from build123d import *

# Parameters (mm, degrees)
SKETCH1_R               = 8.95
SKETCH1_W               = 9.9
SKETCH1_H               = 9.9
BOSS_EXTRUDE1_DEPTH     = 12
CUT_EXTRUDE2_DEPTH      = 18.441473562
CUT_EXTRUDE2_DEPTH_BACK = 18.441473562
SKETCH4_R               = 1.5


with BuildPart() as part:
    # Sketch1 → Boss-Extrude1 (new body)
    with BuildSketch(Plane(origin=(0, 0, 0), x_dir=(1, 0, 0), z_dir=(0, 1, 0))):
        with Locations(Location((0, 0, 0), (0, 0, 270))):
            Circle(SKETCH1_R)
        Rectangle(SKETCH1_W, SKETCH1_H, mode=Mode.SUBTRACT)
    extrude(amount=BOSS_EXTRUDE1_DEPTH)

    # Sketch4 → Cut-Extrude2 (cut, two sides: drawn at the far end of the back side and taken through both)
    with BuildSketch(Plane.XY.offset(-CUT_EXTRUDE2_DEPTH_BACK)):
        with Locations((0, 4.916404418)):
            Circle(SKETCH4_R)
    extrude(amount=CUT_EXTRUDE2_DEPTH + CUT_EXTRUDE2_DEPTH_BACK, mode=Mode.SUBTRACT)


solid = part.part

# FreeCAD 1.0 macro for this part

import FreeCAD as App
import Part
import Sketcher
from FreeCAD import Vector
Q = App.Units.Quantity

doc = App.newDocument("Part")
body = doc.addObject("PartDesign::Body", "Body")

# Sketch on XZ plane
sketch1 = body.newObject("Sketcher::SketchObject", "Sketch")
sketch1.AttachmentSupport = (doc.getObject("XZ_Plane"), [""])
sketch1.MapMode = "FlatFace"
sketch1.addGeometry([
    Part.Circle(Vector(0, 0, 0), Vector(0, 0, 1), 9),  # 0
    Part.LineSegment(Vector(5, 5, 0), Vector(-5, 5, 0)),  # 1
    Part.LineSegment(Vector(-5, 5, 0), Vector(-5, -5, 0)),  # 2
    Part.LineSegment(Vector(-5, -5, 0), Vector(5, -5, 0)),  # 3
    Part.LineSegment(Vector(5, -5, 0), Vector(5, 5, 0)),  # 4
], False)
sketch1.addConstraint([
    Sketcher.Constraint("Coincident", 1, 2, 2, 1),
    Sketcher.Constraint("Coincident", 2, 2, 3, 1),
    Sketcher.Constraint("Coincident", 3, 2, 4, 1),
    Sketcher.Constraint("Coincident", 4, 2, 1, 1),
    Sketcher.Constraint("Horizontal", 1),
    Sketcher.Constraint("Vertical", 2),
    Sketcher.Constraint("Horizontal", 3),
    Sketcher.Constraint("Vertical", 4),
    Sketcher.Constraint("Coincident", 0, 3, -1, 1),
    Sketcher.Constraint("Symmetric", 1, 2, 3, 2, -1, 1),
    Sketcher.Constraint("Equal", 3, 2),
    Sketcher.Constraint("Diameter", 0, Q("17.9 mm")),
    Sketcher.Constraint("DistanceX", 1, 2, 1, 1, Q("9.9 mm")),
])
pad1 = body.newObject("PartDesign::Pad", "Pad")
pad1.Profile = sketch1
pad1.Length = 12
pad1.Reversed = True

# Sketch on XY plane
sketch2 = body.newObject("Sketcher::SketchObject", "Sketch001")
sketch2.AttachmentSupport = (doc.getObject("XY_Plane"), [""])
sketch2.MapMode = "FlatFace"
sketch2.addGeometry(Part.Circle(Vector(0, 4.9, 0), Vector(0, 0, 1), 1.5), False)
sketch2.addConstraint([
    Sketcher.Constraint("PointOnObject", 0, 3, -2),
    Sketcher.Constraint("Diameter", 0, Q("3 mm")),
    Sketcher.Constraint("DistanceY", -1, 1, 0, 3, Q("4.916404 mm")),
])
pocket1 = body.newObject("PartDesign::Pocket", "Pocket")
pocket1.Profile = sketch2
pocket1.Type = "ThroughAll"
pocket1.Midplane = True

doc.recompute()
